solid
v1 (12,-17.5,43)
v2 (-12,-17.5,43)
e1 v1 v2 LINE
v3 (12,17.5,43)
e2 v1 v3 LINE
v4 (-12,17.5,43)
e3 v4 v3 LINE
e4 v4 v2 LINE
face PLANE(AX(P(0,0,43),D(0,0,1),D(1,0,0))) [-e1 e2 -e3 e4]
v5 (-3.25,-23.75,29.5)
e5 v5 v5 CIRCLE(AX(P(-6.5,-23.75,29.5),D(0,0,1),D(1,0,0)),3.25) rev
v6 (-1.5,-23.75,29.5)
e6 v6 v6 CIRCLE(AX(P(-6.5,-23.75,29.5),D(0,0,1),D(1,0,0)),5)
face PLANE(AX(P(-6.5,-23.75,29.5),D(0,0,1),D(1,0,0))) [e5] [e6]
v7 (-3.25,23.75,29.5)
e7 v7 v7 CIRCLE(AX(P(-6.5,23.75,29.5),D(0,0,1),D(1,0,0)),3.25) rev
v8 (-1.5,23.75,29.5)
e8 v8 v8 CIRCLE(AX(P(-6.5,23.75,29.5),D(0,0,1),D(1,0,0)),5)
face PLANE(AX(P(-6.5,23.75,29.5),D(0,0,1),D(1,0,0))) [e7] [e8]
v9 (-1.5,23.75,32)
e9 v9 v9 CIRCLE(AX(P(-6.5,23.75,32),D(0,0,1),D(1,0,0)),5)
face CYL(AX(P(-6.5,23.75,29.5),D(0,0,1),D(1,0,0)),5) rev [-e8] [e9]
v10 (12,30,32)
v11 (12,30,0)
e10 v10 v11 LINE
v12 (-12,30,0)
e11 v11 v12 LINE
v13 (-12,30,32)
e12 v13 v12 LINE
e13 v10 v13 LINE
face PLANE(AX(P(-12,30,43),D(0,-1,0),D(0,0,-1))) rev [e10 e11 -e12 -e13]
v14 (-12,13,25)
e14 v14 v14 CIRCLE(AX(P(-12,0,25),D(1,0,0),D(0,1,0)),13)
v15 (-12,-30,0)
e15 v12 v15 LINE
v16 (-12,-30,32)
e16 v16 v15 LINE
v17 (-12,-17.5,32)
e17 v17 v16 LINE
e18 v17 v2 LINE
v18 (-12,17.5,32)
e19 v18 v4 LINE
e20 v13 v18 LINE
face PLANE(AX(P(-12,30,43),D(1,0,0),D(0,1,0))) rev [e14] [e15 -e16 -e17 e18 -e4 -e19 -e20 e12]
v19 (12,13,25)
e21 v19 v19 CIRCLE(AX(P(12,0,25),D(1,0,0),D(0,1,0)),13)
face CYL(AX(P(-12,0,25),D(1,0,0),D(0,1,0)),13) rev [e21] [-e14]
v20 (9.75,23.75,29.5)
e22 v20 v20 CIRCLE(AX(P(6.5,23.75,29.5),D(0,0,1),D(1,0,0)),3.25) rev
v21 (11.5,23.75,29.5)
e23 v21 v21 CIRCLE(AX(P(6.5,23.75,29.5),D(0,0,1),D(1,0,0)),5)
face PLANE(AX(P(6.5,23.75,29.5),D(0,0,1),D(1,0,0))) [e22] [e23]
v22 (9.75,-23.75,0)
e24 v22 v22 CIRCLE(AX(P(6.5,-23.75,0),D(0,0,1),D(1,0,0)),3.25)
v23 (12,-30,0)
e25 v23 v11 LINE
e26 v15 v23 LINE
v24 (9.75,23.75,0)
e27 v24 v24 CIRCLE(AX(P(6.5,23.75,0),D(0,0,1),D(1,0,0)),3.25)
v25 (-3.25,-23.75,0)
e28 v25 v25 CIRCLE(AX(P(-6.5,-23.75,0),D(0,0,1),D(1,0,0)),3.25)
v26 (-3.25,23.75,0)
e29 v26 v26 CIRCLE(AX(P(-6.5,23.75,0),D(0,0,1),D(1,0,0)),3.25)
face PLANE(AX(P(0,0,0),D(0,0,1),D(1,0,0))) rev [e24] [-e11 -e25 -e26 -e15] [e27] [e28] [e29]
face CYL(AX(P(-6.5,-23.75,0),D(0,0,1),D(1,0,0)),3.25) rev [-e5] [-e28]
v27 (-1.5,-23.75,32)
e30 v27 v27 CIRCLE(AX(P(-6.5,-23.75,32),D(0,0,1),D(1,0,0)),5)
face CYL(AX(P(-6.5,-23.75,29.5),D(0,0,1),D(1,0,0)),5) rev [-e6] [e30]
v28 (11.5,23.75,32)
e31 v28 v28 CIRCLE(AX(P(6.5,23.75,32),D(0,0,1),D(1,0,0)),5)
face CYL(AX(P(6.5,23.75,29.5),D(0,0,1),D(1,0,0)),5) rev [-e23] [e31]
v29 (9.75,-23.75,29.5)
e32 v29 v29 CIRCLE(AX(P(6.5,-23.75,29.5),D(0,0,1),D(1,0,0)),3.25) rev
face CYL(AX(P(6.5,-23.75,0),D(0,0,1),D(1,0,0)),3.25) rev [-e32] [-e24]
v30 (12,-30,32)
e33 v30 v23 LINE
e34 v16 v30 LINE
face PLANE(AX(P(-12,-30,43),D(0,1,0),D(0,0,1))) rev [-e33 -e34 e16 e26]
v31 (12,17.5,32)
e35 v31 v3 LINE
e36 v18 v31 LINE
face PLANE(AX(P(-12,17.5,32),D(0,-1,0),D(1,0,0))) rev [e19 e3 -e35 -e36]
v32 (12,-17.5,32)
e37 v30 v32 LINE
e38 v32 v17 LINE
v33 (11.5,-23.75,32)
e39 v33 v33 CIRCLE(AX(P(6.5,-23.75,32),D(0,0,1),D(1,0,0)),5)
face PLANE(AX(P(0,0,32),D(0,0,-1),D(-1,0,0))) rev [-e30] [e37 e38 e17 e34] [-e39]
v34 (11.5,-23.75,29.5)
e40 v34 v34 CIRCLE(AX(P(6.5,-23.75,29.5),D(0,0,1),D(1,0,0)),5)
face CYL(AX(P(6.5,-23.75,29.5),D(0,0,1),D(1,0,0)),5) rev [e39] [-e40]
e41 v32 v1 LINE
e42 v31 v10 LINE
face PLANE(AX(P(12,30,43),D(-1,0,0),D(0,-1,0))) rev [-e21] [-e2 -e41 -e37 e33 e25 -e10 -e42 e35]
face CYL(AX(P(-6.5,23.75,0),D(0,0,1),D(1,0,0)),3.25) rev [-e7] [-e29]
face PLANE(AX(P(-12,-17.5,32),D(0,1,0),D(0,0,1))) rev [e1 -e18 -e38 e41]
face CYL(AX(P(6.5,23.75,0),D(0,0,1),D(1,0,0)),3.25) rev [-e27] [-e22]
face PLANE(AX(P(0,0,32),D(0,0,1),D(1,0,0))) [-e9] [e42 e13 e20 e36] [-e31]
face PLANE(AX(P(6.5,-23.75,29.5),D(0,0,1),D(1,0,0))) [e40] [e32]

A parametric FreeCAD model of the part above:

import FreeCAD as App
import Part
import Sketcher

V = App.Vector


def add_polygon(sketch, points):
    """Adds a closed chain of lines whose ends are joined by coincident constraints."""
    first, n = sketch.GeometryCount, len(points)
    for a, b in zip(points, points[1:] + points[:1]):
        sketch.addGeometry(Part.LineSegment(App.Vector(*a, 0), App.Vector(*b, 0)), False)
    for i in range(n):
        sketch.addConstraint(Sketcher.Constraint("Coincident", first + i, 2, first + (i + 1) % n, 1))

doc = App.newDocument("Part")
body = doc.addObject("PartDesign::Body", "Body")

# Sketch on XY plane
sketch1 = body.newObject("Sketcher::SketchObject", "Sketch")
sketch1.AttachmentSupport = (doc.getObject("XY_Plane"), [""])
sketch1.MapMode = "FlatFace"
add_polygon(sketch1, [(-12, 30), (-12, -30), (12, -30), (12, 30)])  # lines 0-3
sketch1.addConstraint([
    Sketcher.Constraint("Vertical", 0),
    Sketcher.Constraint("Horizontal", 1),
    Sketcher.Constraint("Vertical", 2),
    Sketcher.Constraint("Horizontal", 3),
    Sketcher.Constraint("Symmetric", 0, 2, 2, 2, -1, 1),
    Sketcher.Constraint("DistanceX", 1, 1, 1, 2, 24.0),
    Sketcher.Constraint("DistanceY", 0, 2, 0, 1, 60.0),
])
pad1 = body.newObject("PartDesign::Pad", "Pad")
pad1.Profile = sketch1
pad1.Length = 43

# Sketch on XY plane
sketch2 = body.newObject("Sketcher::SketchObject", "Sketch001")
sketch2.AttachmentSupport = (doc.getObject("XY_Plane"), [""])
sketch2.MapMode = "FlatFace"
sketch2.AttachmentOffset = App.Placement(V(0, 0, 43), App.Rotation())
add_polygon(sketch2, [(-12, -18), (-12, -30), (12, -30), (12, -18)])  # lines 0-3
add_polygon(sketch2, [(-12, 30), (-12, 18), (12, 18), (12, 30)])  # lines 4-7
sketch2.addConstraint([
    Sketcher.Constraint("Vertical", 0),
    Sketcher.Constraint("Horizontal", 1),
    Sketcher.Constraint("Vertical", 2),
    Sketcher.Constraint("Horizontal", 3),
    Sketcher.Constraint("Vertical", 4),
    Sketcher.Constraint("Horizontal", 5),
    Sketcher.Constraint("Vertical", 6),
    Sketcher.Constraint("Horizontal", 7),
    Sketcher.Constraint("Symmetric", 2, 2, 4, 2, -1, 1),
    Sketcher.Constraint("Symmetric", 0, 2, 6, 2, -1, 1),
    Sketcher.Constraint("Vertical", 3, 2, 4, 2),
    Sketcher.Constraint("DistanceX", 1, 1, 1, 2, 24.0),
    Sketcher.Constraint("DistanceY", 0, 2, 0, 1, 12.5),
    Sketcher.Constraint("DistanceY", 0, 2, -1, 1, 30.0),
])
pocket1 = body.newObject("PartDesign::Pocket", "Pocket")
pocket1.Profile = sketch2
pocket1.Length = 11

# Sketch on XY plane
sketch3 = body.newObject("Sketcher::SketchObject", "Sketch002")
sketch3.AttachmentSupport = (doc.getObject("XY_Plane"), [""])
sketch3.MapMode = "FlatFace"
sketch3.AttachmentOffset = App.Placement(V(0, 0, 32), App.Rotation())
sketch3.addGeometry([
    Part.Circle(V(-6.5, -23.8, 0), V(0, 0, 1), 3.2),
    Part.Circle(V(6.5, -23.8, 0), V(0, 0, 1), 3.2),
    Part.Circle(V(-6.5, 23.8, 0), V(0, 0, 1), 3.2),
    Part.Circle(V(6.5, 23.8, 0), V(0, 0, 1), 3.2),
], False)
sketch3.addConstraint([
    Sketcher.Constraint("Equal", 0, 1),
    Sketcher.Constraint("Equal", 1, 2),
    Sketcher.Constraint("Equal", 2, 3),
    Sketcher.Constraint("Symmetric", 1, 3, 2, 3, -1, 1),
    Sketcher.Constraint("Symmetric", 0, 3, 3, 3, -1, 1),
    Sketcher.Constraint("Symmetric", 0, 3, 1, 3, -2),
    Sketcher.Constraint("Diameter", 0, 6.5),
    Sketcher.Constraint("DistanceX", 0, 3, 1, 3, 13.0),
    Sketcher.Constraint("DistanceY", 0, 3, 2, 3, 47.5),
])
pocket2 = body.newObject("PartDesign::Pocket", "Pocket001")
pocket2.Profile = sketch3
pocket2.Type = "ThroughAll"

# Sketch on XY plane
sketch4 = body.newObject("Sketcher::SketchObject", "Sketch003")
sketch4.AttachmentSupport = (doc.getObject("XY_Plane"), [""])
sketch4.MapMode = "FlatFace"
sketch4.AttachmentOffset = App.Placement(V(0, 0, 32), App.Rotation())
sketch4.addGeometry([
    Part.Circle(V(-6, 24, 0), V(0, 0, 1), 5),
    Part.Circle(V(6, 24, 0), V(0, 0, 1), 5),
    Part.Circle(V(-6, -24, 0), V(0, 0, 1), 5),
    Part.Circle(V(6, -24, 0), V(0, 0, 1), 5),
], False)
sketch4.addConstraint([
    Sketcher.Constraint("Equal", 0, 1),
    Sketcher.Constraint("Equal", 1, 2),
    Sketcher.Constraint("Equal", 2, 3),
    Sketcher.Constraint("Symmetric", 1, 3, 2, 3, -1, 1),
    Sketcher.Constraint("Symmetric", 0, 3, 3, 3, -1, 1),
    Sketcher.Constraint("Symmetric", 0, 3, 1, 3, -2),
    Sketcher.Constraint("Diameter", 0, 10.0),
    Sketcher.Constraint("DistanceX", 0, 3, 1, 3, 13.0),
    Sketcher.Constraint("DistanceY", 2, 3, 0, 3, 47.5),
])
pocket3 = body.newObject("PartDesign::Pocket", "Pocket002")
pocket3.Profile = sketch4
pocket3.Length = 2.5

# Sketch on YZ plane
sketch5 = body.newObject("Sketcher::SketchObject", "Sketch004")
sketch5.AttachmentSupport = (doc.getObject("YZ_Plane"), [""])
sketch5.MapMode = "FlatFace"
sketch5.AttachmentOffset = App.Placement(V(0, 0, 12), App.Rotation())
sketch5.addGeometry(Part.Circle(V(0, 25, 0), V(0, 0, 1), 13), False)
sketch5.addConstraint([
    Sketcher.Constraint("PointOnObject", 0, 3, -2),
    Sketcher.Constraint("Diameter", 0, 26.0),
    Sketcher.Constraint("DistanceY", -1, 1, 0, 3, 25.0),
])
pocket4 = body.newObject("PartDesign::Pocket", "Pocket003")
pocket4.Profile = sketch5
pocket4.Type = "ThroughAll"

doc.recompute()
